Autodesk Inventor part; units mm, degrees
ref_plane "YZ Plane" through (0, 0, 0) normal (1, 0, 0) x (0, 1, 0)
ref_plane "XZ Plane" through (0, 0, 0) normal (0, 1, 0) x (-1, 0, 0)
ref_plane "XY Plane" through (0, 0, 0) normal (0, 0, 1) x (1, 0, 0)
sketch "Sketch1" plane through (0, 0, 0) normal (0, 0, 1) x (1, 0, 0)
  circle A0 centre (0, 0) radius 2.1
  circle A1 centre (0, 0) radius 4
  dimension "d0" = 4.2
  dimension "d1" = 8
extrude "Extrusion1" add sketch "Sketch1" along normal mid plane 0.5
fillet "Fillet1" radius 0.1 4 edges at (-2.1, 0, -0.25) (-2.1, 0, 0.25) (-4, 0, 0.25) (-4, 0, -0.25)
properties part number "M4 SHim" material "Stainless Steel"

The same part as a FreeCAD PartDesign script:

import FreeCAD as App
import Part
import Sketcher
Q = App.Units.Quantity


def edges_at(feature, points):
    """Names of the edges that pass closest to the given points."""
    edges = feature.Shape.Edges
    near = lambda p: min(range(len(edges)), key=lambda i: edges[i].distToShape(Part.Vertex(*p))[0])
    return sorted({f"Edge{near(p) + 1}" for p in points})

doc = App.newDocument("Part")
body = doc.addObject("PartDesign::Body", "Body")

# Sketch on XY plane
sketch1 = body.newObject("Sketcher::SketchObject", "Sketch")
sketch1.AttachmentSupport = (doc.getObject("XY_Plane"), [""])
sketch1.MapMode = "FlatFace"
sketch1.addGeometry([
    Part.Circle(App.Vector(0, 0, 0), App.Vector(0, 0, 1), 4),
    Part.Circle(App.Vector(0, 0, 0), App.Vector(0, 0, 1), 2.1),
], False)
sketch1.addConstraint([
    Sketcher.Constraint("Coincident", 0, 3, -1, 1),
    Sketcher.Constraint("Coincident", 1, 3, -1, 1),
    Sketcher.Constraint("Diameter", 0, Q("8 mm")),
    Sketcher.Constraint("Diameter", 1, Q("4.2 mm")),
])
pad1 = body.newObject("PartDesign::Pad", "Pad")
pad1.Profile = sketch1
pad1.Length = 0.5
pad1.Midplane = True
doc.recompute()

fillet = body.newObject("PartDesign::Fillet", "Fillet")
fillet.Base = (pad1, edges_at(pad1, [
    (-2.1, 0, -0.25),
    (-2.1, 0, 0.25),
    (-4, 0, 0.25),
    (-4, 0, -0.25),
]))
fillet.Radius = 0.1

doc.recompute()
